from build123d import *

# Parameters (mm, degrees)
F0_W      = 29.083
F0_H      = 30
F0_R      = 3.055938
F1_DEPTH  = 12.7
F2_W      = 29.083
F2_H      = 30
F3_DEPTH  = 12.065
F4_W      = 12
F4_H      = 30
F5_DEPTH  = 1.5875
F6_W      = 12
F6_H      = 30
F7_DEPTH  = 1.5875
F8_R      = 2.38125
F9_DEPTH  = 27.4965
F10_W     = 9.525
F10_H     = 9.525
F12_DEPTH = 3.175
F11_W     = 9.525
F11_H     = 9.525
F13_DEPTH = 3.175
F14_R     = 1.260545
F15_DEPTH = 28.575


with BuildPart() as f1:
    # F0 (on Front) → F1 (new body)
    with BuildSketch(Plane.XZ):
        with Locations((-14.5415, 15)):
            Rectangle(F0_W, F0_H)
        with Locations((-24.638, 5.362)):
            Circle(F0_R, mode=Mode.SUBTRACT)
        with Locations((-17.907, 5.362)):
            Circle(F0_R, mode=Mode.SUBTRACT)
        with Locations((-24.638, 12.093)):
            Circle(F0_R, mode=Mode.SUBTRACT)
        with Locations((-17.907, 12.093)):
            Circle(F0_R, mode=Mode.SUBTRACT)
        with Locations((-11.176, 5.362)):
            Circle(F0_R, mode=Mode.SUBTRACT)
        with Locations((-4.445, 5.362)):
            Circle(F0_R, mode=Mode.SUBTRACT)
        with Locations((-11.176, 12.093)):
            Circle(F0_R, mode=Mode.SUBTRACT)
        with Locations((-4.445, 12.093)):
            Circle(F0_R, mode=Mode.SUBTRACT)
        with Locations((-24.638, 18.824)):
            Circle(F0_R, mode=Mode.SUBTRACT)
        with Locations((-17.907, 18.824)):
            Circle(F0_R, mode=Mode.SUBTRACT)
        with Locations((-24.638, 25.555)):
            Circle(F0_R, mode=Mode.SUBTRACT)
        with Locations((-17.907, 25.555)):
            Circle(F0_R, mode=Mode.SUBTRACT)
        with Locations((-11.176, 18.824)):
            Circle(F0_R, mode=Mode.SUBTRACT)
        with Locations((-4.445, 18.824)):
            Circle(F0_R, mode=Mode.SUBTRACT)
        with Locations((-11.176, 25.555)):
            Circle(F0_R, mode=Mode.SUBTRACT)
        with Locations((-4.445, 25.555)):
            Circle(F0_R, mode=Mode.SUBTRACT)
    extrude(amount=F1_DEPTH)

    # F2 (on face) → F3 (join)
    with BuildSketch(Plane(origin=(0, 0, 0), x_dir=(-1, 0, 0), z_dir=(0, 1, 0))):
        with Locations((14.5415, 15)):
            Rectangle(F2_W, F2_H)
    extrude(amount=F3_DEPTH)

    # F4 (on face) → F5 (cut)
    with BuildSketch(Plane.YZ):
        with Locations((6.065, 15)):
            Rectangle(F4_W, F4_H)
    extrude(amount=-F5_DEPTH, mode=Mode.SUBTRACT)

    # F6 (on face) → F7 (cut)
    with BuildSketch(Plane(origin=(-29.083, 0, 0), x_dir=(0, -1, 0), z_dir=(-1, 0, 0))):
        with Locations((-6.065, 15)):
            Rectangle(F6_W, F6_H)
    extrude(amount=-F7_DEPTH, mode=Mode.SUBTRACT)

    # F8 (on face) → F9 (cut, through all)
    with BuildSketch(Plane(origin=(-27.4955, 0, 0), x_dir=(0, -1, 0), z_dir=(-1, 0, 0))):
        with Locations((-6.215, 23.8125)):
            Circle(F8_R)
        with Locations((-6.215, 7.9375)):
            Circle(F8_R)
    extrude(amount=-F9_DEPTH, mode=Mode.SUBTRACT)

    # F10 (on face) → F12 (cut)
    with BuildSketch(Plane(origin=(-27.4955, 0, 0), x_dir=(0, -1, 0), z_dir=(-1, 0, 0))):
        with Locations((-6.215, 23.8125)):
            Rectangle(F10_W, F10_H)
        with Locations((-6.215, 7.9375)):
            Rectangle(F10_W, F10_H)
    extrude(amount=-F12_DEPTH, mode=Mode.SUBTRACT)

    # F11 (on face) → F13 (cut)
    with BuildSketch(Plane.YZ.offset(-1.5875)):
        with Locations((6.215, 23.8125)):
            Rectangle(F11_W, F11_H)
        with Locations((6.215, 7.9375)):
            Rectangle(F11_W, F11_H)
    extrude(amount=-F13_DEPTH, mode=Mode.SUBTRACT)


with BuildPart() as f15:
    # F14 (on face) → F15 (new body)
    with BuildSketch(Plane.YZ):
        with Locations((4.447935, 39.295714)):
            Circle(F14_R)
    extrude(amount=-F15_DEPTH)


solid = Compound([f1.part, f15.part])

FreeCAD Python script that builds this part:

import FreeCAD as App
import Part
import Sketcher

V = App.Vector
Q = App.Units.Quantity


def add_polygon(sketch, points):
    """Adds a closed chain of lines whose ends are joined by coincident constraints."""
    first, n = sketch.GeometryCount, len(points)
    for a, b in zip(points, points[1:] + points[:1]):
        sketch.addGeometry(Part.LineSegment(App.Vector(*a, 0), App.Vector(*b, 0)), False)
    for i in range(n):
        sketch.addConstraint(Sketcher.Constraint("Coincident", first + i, 2, first + (i + 1) % n, 1))

doc = App.newDocument("Part")
body = doc.addObject("PartDesign::Body", "Body")

# Sketch on XZ plane
sketch1 = doc.addObject("Sketcher::SketchObject", "Sketch")
body.addObject(sketch1)
sketch1.AttachmentSupport = (doc.XZ_Plane, [""])
sketch1.MapMode = "FlatFace"
add_polygon(sketch1, [(-29.1, 30), (-29.1, 0), (0, 0), (0, 30)])  # lines 0-3
sketch1.addGeometry(Part.Circle(V(-24.6, 5.4, 0), V(0, 0, 1), 3.1), False)  # 4
sketch1.addGeometry(Part.Circle(V(-17.9, 5.4, 0), V(0, 0, 1), 3.1), False)  # 5
sketch1.addGeometry(Part.Circle(V(-24.6, 12.1, 0), V(0, 0, 1), 3.1), False)  # 6
sketch1.addGeometry(Part.Circle(V(-17.9, 12.1, 0), V(0, 0, 1), 3.1), False)  # 7
sketch1.addGeometry(Part.Circle(V(-11.2, 5.4, 0), V(0, 0, 1), 3.1), False)  # 8
sketch1.addGeometry(Part.Circle(V(-4.4, 5.4, 0), V(0, 0, 1), 3.1), False)  # 9
sketch1.addGeometry(Part.Circle(V(-11.2, 12.1, 0), V(0, 0, 1), 3.1), False)  # 10
sketch1.addGeometry(Part.Circle(V(-4.4, 12.1, 0), V(0, 0, 1), 3.1), False)  # 11
sketch1.addGeometry(Part.Circle(V(-24.6, 18.8, 0), V(0, 0, 1), 3.1), False)  # 12
sketch1.addGeometry(Part.Circle(V(-17.9, 18.8, 0), V(0, 0, 1), 3.1), False)  # 13
sketch1.addGeometry(Part.Circle(V(-24.6, 25.6, 0), V(0, 0, 1), 3.1), False)  # 14
sketch1.addGeometry(Part.Circle(V(-17.9, 25.6, 0), V(0, 0, 1), 3.1), False)  # 15
sketch1.addGeometry(Part.Circle(V(-11.2, 18.8, 0), V(0, 0, 1), 3.1), False)  # 16
sketch1.addGeometry(Part.Circle(V(-4.4, 18.8, 0), V(0, 0, 1), 3.1), False)  # 17
sketch1.addGeometry(Part.Circle(V(-11.2, 25.6, 0), V(0, 0, 1), 3.1), False)  # 18
sketch1.addGeometry(Part.Circle(V(-4.4, 25.6, 0), V(0, 0, 1), 3.1), False)  # 19
sketch1.addConstraint([
    Sketcher.Constraint("Vertical", 0),
    Sketcher.Constraint("Horizontal", 1),
    Sketcher.Constraint("Vertical", 2),
    Sketcher.Constraint("Horizontal", 3),
    Sketcher.Constraint("Coincident", 1, 2, -1, 1),
    Sketcher.Constraint("Equal", 4, 5),
    Sketcher.Constraint("Equal", 5, 6),
    Sketcher.Constraint("Equal", 6, 7),
    Sketcher.Constraint("Equal", 7, 8),
    Sketcher.Constraint("Equal", 8, 9),
    Sketcher.Constraint("Equal", 9, 10),
    Sketcher.Constraint("Equal", 10, 11),
    Sketcher.Constraint("Equal", 11, 12),
    Sketcher.Constraint("Equal", 12, 13),
    Sketcher.Constraint("Equal", 13, 14),
    Sketcher.Constraint("Equal", 14, 15),
    Sketcher.Constraint("Equal", 15, 16),
    Sketcher.Constraint("Equal", 16, 17),
    Sketcher.Constraint("Equal", 17, 18),
    Sketcher.Constraint("Equal", 18, 19),
    Sketcher.Constraint("Horizontal", 4, 3, 5, 3),
    Sketcher.Constraint("Horizontal", 6, 3, 7, 3),
    Sketcher.Constraint("Horizontal", 5, 3, 8, 3),
    Sketcher.Constraint("Horizontal", 8, 3, 9, 3),
    Sketcher.Constraint("Horizontal", 7, 3, 10, 3),
    Sketcher.Constraint("Horizontal", 10, 3, 11, 3),
    Sketcher.Constraint("Horizontal", 12, 3, 13, 3),
    Sketcher.Constraint("Horizontal", 14, 3, 15, 3),
    Sketcher.Constraint("Horizontal", 13, 3, 16, 3),
    Sketcher.Constraint("Horizontal", 16, 3, 17, 3),
    Sketcher.Constraint("Horizontal", 15, 3, 18, 3),
    Sketcher.Constraint("Horizontal", 18, 3, 19, 3),
    Sketcher.Constraint("Vertical", 4, 3, 6, 3),
    Sketcher.Constraint("Vertical", 5, 3, 7, 3),
    Sketcher.Constraint("Vertical", 8, 3, 10, 3),
    Sketcher.Constraint("Vertical", 9, 3, 11, 3),
    Sketcher.Constraint("Vertical", 6, 3, 12, 3),
    Sketcher.Constraint("Vertical", 7, 3, 13, 3),
    Sketcher.Constraint("Vertical", 12, 3, 14, 3),
    Sketcher.Constraint("Vertical", 13, 3, 15, 3),
    Sketcher.Constraint("Vertical", 10, 3, 16, 3),
    Sketcher.Constraint("Vertical", 11, 3, 17, 3),
    Sketcher.Constraint("Vertical", 16, 3, 18, 3),
    Sketcher.Constraint("Vertical", 17, 3, 19, 3),
    Sketcher.Constraint("DistanceX", 1, 1, 1, 2, Q("1.145 in")),
    Sketcher.Constraint("DistanceX", 4, 3, -1, 1, Q("0.97 in")),
    Sketcher.Constraint("DistanceX", 8, 3, -1, 1, Q("0.44 in")),
    Sketcher.Constraint("DistanceX", 5, 3, 9, 3, Q("0.53 in")),
    Sketcher.Constraint("DistanceY", 4, 3, 12, 3, Q("0.53 in")),
    Sketcher.Constraint("DistanceY", 6, 3, 14, 3, Q("0.53 in")),
    Sketcher.Constraint("DistanceX", 0, 2, 5, 3, Q("0.44 in")),
    Sketcher.Constraint("DistanceY", 17, 3, 2, 2, Q("0.44 in")),
    Sketcher.Constraint("DistanceY", 4, 3, 6, 3, Q("0.265 in")),
    Sketcher.Constraint("Diameter", 4, Q("6.111876 mm")),
    Sketcher.Constraint("DistanceY", 0, 2, 0, 1, Q("30 mm")),
])
pad1 = doc.addObject("PartDesign::Pad", "Pad")
body.addObject(pad1)
pad1.Profile = sketch1
pad1.Length = Q("0.5 in")

# Sketch on XZ plane
sketch2 = doc.addObject("Sketcher::SketchObject", "Sketch001")
body.addObject(sketch2)
sketch2.AttachmentSupport = (doc.XZ_Plane, [""])
sketch2.MapMode = "FlatFace"
add_polygon(sketch2, [(0, 30), (0, 0), (-29, 0), (-29, 30)])  # lines 0-3
sketch2.addConstraint([
    Sketcher.Constraint("Vertical", 0),
    Sketcher.Constraint("Horizontal", 1),
    Sketcher.Constraint("Vertical", 2),
    Sketcher.Constraint("Horizontal", 3),
    Sketcher.Constraint("Coincident", 0, 2, -1, 1),
    Sketcher.Constraint("DistanceX", 1, 2, 1, 1, Q("1.145 in")),
    Sketcher.Constraint("DistanceY", 0, 2, 0, 1, Q("30 mm")),
])
pad2 = doc.addObject("PartDesign::Pad", "Pad001")
body.addObject(pad2)
pad2.Profile = sketch2
pad2.Length = Q("0.475 in")
pad2.Reversed = True

# Sketch on YZ plane
sketch3 = doc.addObject("Sketcher::SketchObject", "Sketch002")
body.addObject(sketch3)
sketch3.AttachmentSupport = (doc.YZ_Plane, [""])
sketch3.MapMode = "FlatFace"
add_polygon(sketch3, [(0, 30), (0, 0), (12, 0), (12, 30)])  # lines 0-3
sketch3.addConstraint([
    Sketcher.Constraint("Vertical", 0),
    Sketcher.Constraint("Horizontal", 1),
    Sketcher.Constraint("Vertical", 2),
    Sketcher.Constraint("Horizontal", 3),
    Sketcher.Constraint("PointOnObject", 0, 2, -1),
    Sketcher.Constraint("DistanceX", -1, 1, 1, 2, Q("0.475 in")),
    Sketcher.Constraint("DistanceX", 1, 1, 1, 2, Q("12 mm")),
    Sketcher.Constraint("DistanceY", 0, 2, 0, 1, Q("30 mm")),
])
pocket1 = doc.addObject("PartDesign::Pocket", "Pocket")
body.addObject(pocket1)
pocket1.Profile = sketch3
pocket1.Length = Q("0.0625 in")

# Sketch on YZ plane
sketch4 = doc.addObject("Sketcher::SketchObject", "Sketch003")
body.addObject(sketch4)
sketch4.AttachmentSupport = (doc.YZ_Plane, [""])
sketch4.MapMode = "FlatFace"
sketch4.AttachmentOffset = App.Placement(V(0, 0, -1.145 * 25.4), App.Rotation())
add_polygon(sketch4, [(12, 30), (12, 0), (0, 0), (0, 30)])  # lines 0-3
sketch4.addConstraint([
    Sketcher.Constraint("Vertical", 0),
    Sketcher.Constraint("Horizontal", 1),
    Sketcher.Constraint("Vertical", 2),
    Sketcher.Constraint("Horizontal", 3),
    Sketcher.Constraint("PointOnObject", 0, 2, -1),
    Sketcher.Constraint("DistanceX", -1, 1, 0, 2, Q("0.475 in")),
    Sketcher.Constraint("DistanceX", 1, 2, 1, 1, Q("12 mm")),
    Sketcher.Constraint("DistanceY", 0, 2, 0, 1, Q("30 mm")),
])
pocket2 = doc.addObject("PartDesign::Pocket", "Pocket001")
body.addObject(pocket2)
pocket2.Profile = sketch4
pocket2.Length = Q("0.0625 in")
pocket2.Reversed = True

# Sketch on YZ plane
sketch5 = doc.addObject("Sketcher::SketchObject", "Sketch004")
body.addObject(sketch5)
sketch5.AttachmentSupport = (doc.YZ_Plane, [""])
sketch5.MapMode = "FlatFace"
sketch5.AttachmentOffset = App.Placement(V(0, 0, -1.0825 * 25.4), App.Rotation())
sketch5.addGeometry([
    Part.Circle(V(6.2, 23.8, 0), V(0, 0, 1), 2.4),
    Part.Circle(V(6.2, 7.9, 0), V(0, 0, 1), 2.4),
], False)
sketch5.addConstraint([
    Sketcher.Constraint("Equal", 0, 1),
    Sketcher.Constraint("Vertical", 0, 3, 1, 3),
    Sketcher.Constraint("Diameter", 0, Q("0.1875 in")),
    Sketcher.Constraint("DistanceY", -1, 1, 0, 3, Q("0.9375 in")),
    Sketcher.Constraint("DistanceY", -1, 1, 1, 3, Q("0.3125 in")),
    Sketcher.Constraint("DistanceX", -1, 1, 0, 3, Q("6.215 mm")),
])
pocket3 = doc.addObject("PartDesign::Pocket", "Pocket002")
body.addObject(pocket3)
pocket3.Profile = sketch5
pocket3.Type = "ThroughAll"
pocket3.Reversed = True

# Sketch on YZ plane
sketch6 = doc.addObject("Sketcher::SketchObject", "Sketch005")
body.addObject(sketch6)
sketch6.AttachmentSupport = (doc.YZ_Plane, [""])
sketch6.MapMode = "FlatFace"
sketch6.AttachmentOffset = App.Placement(V(0, 0, -1.0825 * 25.4), App.Rotation())
add_polygon(sketch6, [(11, 29), (11, 19), (1, 19), (1, 29)])  # lines 0-3
add_polygon(sketch6, [(11, 13), (11, 3), (1, 3), (1, 13)])  # lines 4-7
sketch6.addConstraint([
    Sketcher.Constraint("Vertical", 0),
    Sketcher.Constraint("Horizontal", 1),
    Sketcher.Constraint("Vertical", 2),
    Sketcher.Constraint("Horizontal", 3),
    Sketcher.Constraint("Vertical", 4),
    Sketcher.Constraint("Horizontal", 5),
    Sketcher.Constraint("Vertical", 6),
    Sketcher.Constraint("Horizontal", 7),
    Sketcher.Constraint("Vertical", 3, 2, 4, 2),
    Sketcher.Constraint("Vertical", 2, 2, 5, 2),
    Sketcher.Constraint("Equal", 7, 0),
    Sketcher.Constraint("Equal", 2, 4),
    Sketcher.Constraint("DistanceY", 4, 2, 3, 2, Q("1 in")),
    Sketcher.Constraint("DistanceY", -1, 1, 6, 2, Q("0.5 in")),
    Sketcher.Constraint("DistanceX", 1, 2, 1, 1, Q("0.375 in")),
    Sketcher.Constraint("DistanceX", -1, 1, 0, 2, Q("10.9775 mm")),
])
pocket4 = doc.addObject("PartDesign::Pocket", "Pocket003")
body.addObject(pocket4)
pocket4.Profile = sketch6
pocket4.Length = Q("0.125 in")
pocket4.Reversed = True

# Sketch on YZ plane
sketch7 = doc.addObject("Sketcher::SketchObject", "Sketch006")
body.addObject(sketch7)
sketch7.AttachmentSupport = (doc.YZ_Plane, [""])
sketch7.MapMode = "FlatFace"
sketch7.AttachmentOffset = App.Placement(V(0, 0, -0.0625 * 25.4), App.Rotation())
add_polygon(sketch7, [(1, 29), (1, 19), (11, 19), (11, 29)])  # lines 0-3
add_polygon(sketch7, [(1, 13), (1, 3), (11, 3), (11, 13)])  # lines 4-7
sketch7.addConstraint([
    Sketcher.Constraint("Vertical", 0),
    Sketcher.Constraint("Horizontal", 1),
    Sketcher.Constraint("Vertical", 2),
    Sketcher.Constraint("Horizontal", 3),
    Sketcher.Constraint("Vertical", 4),
    Sketcher.Constraint("Horizontal", 5),
    Sketcher.Constraint("Vertical", 6),
    Sketcher.Constraint("Horizontal", 7),
    Sketcher.Constraint("Vertical", 3, 2, 4, 2),
    Sketcher.Constraint("Vertical", 2, 2, 5, 2),
    Sketcher.Constraint("Equal", 7, 0),
    Sketcher.Constraint("Equal", 2, 4),
    Sketcher.Constraint("DistanceY", 4, 2, 3, 2, Q("1 in")),
    Sketcher.Constraint("DistanceY", -1, 1, 6, 2, Q("0.5 in")),
    Sketcher.Constraint("DistanceX", 1, 1, 1, 2, Q("0.375 in")),
    Sketcher.Constraint("DistanceX", -1, 1, 0, 2, Q("1.4525 mm")),
])
pocket5 = doc.addObject("PartDesign::Pocket", "Pocket004")
body.addObject(pocket5)
pocket5.Profile = sketch7
pocket5.Length = Q("0.125 in")
body2 = doc.addObject("PartDesign::Body", "Body001")

# Sketch on YZ plane
sketch8 = doc.addObject("Sketcher::SketchObject", "Sketch007")
body2.addObject(sketch8)
sketch8.AttachmentSupport = (doc.getObject("YZ_Plane001"), [""])
sketch8.MapMode = "FlatFace"
sketch8.addGeometry(Part.Circle(V(4.4, 39.3, 0), V(0, 0, 1), 1.3), False)
sketch8.addConstraint([
    Sketcher.Constraint("Diameter", 0, Q("2.52109 mm")),
    Sketcher.Constraint("DistanceX", -1, 1, 0, 3, Q("4.447935 mm")),
    Sketcher.Constraint("DistanceY", -1, 1, 0, 3, Q("39.295714 mm")),
])
pad3 = doc.addObject("PartDesign::Pad", "Pad002")
body2.addObject(pad3)
pad3.Profile = sketch8
pad3.Length = Q("1.125 in")
pad3.Reversed = True

doc.recompute()
